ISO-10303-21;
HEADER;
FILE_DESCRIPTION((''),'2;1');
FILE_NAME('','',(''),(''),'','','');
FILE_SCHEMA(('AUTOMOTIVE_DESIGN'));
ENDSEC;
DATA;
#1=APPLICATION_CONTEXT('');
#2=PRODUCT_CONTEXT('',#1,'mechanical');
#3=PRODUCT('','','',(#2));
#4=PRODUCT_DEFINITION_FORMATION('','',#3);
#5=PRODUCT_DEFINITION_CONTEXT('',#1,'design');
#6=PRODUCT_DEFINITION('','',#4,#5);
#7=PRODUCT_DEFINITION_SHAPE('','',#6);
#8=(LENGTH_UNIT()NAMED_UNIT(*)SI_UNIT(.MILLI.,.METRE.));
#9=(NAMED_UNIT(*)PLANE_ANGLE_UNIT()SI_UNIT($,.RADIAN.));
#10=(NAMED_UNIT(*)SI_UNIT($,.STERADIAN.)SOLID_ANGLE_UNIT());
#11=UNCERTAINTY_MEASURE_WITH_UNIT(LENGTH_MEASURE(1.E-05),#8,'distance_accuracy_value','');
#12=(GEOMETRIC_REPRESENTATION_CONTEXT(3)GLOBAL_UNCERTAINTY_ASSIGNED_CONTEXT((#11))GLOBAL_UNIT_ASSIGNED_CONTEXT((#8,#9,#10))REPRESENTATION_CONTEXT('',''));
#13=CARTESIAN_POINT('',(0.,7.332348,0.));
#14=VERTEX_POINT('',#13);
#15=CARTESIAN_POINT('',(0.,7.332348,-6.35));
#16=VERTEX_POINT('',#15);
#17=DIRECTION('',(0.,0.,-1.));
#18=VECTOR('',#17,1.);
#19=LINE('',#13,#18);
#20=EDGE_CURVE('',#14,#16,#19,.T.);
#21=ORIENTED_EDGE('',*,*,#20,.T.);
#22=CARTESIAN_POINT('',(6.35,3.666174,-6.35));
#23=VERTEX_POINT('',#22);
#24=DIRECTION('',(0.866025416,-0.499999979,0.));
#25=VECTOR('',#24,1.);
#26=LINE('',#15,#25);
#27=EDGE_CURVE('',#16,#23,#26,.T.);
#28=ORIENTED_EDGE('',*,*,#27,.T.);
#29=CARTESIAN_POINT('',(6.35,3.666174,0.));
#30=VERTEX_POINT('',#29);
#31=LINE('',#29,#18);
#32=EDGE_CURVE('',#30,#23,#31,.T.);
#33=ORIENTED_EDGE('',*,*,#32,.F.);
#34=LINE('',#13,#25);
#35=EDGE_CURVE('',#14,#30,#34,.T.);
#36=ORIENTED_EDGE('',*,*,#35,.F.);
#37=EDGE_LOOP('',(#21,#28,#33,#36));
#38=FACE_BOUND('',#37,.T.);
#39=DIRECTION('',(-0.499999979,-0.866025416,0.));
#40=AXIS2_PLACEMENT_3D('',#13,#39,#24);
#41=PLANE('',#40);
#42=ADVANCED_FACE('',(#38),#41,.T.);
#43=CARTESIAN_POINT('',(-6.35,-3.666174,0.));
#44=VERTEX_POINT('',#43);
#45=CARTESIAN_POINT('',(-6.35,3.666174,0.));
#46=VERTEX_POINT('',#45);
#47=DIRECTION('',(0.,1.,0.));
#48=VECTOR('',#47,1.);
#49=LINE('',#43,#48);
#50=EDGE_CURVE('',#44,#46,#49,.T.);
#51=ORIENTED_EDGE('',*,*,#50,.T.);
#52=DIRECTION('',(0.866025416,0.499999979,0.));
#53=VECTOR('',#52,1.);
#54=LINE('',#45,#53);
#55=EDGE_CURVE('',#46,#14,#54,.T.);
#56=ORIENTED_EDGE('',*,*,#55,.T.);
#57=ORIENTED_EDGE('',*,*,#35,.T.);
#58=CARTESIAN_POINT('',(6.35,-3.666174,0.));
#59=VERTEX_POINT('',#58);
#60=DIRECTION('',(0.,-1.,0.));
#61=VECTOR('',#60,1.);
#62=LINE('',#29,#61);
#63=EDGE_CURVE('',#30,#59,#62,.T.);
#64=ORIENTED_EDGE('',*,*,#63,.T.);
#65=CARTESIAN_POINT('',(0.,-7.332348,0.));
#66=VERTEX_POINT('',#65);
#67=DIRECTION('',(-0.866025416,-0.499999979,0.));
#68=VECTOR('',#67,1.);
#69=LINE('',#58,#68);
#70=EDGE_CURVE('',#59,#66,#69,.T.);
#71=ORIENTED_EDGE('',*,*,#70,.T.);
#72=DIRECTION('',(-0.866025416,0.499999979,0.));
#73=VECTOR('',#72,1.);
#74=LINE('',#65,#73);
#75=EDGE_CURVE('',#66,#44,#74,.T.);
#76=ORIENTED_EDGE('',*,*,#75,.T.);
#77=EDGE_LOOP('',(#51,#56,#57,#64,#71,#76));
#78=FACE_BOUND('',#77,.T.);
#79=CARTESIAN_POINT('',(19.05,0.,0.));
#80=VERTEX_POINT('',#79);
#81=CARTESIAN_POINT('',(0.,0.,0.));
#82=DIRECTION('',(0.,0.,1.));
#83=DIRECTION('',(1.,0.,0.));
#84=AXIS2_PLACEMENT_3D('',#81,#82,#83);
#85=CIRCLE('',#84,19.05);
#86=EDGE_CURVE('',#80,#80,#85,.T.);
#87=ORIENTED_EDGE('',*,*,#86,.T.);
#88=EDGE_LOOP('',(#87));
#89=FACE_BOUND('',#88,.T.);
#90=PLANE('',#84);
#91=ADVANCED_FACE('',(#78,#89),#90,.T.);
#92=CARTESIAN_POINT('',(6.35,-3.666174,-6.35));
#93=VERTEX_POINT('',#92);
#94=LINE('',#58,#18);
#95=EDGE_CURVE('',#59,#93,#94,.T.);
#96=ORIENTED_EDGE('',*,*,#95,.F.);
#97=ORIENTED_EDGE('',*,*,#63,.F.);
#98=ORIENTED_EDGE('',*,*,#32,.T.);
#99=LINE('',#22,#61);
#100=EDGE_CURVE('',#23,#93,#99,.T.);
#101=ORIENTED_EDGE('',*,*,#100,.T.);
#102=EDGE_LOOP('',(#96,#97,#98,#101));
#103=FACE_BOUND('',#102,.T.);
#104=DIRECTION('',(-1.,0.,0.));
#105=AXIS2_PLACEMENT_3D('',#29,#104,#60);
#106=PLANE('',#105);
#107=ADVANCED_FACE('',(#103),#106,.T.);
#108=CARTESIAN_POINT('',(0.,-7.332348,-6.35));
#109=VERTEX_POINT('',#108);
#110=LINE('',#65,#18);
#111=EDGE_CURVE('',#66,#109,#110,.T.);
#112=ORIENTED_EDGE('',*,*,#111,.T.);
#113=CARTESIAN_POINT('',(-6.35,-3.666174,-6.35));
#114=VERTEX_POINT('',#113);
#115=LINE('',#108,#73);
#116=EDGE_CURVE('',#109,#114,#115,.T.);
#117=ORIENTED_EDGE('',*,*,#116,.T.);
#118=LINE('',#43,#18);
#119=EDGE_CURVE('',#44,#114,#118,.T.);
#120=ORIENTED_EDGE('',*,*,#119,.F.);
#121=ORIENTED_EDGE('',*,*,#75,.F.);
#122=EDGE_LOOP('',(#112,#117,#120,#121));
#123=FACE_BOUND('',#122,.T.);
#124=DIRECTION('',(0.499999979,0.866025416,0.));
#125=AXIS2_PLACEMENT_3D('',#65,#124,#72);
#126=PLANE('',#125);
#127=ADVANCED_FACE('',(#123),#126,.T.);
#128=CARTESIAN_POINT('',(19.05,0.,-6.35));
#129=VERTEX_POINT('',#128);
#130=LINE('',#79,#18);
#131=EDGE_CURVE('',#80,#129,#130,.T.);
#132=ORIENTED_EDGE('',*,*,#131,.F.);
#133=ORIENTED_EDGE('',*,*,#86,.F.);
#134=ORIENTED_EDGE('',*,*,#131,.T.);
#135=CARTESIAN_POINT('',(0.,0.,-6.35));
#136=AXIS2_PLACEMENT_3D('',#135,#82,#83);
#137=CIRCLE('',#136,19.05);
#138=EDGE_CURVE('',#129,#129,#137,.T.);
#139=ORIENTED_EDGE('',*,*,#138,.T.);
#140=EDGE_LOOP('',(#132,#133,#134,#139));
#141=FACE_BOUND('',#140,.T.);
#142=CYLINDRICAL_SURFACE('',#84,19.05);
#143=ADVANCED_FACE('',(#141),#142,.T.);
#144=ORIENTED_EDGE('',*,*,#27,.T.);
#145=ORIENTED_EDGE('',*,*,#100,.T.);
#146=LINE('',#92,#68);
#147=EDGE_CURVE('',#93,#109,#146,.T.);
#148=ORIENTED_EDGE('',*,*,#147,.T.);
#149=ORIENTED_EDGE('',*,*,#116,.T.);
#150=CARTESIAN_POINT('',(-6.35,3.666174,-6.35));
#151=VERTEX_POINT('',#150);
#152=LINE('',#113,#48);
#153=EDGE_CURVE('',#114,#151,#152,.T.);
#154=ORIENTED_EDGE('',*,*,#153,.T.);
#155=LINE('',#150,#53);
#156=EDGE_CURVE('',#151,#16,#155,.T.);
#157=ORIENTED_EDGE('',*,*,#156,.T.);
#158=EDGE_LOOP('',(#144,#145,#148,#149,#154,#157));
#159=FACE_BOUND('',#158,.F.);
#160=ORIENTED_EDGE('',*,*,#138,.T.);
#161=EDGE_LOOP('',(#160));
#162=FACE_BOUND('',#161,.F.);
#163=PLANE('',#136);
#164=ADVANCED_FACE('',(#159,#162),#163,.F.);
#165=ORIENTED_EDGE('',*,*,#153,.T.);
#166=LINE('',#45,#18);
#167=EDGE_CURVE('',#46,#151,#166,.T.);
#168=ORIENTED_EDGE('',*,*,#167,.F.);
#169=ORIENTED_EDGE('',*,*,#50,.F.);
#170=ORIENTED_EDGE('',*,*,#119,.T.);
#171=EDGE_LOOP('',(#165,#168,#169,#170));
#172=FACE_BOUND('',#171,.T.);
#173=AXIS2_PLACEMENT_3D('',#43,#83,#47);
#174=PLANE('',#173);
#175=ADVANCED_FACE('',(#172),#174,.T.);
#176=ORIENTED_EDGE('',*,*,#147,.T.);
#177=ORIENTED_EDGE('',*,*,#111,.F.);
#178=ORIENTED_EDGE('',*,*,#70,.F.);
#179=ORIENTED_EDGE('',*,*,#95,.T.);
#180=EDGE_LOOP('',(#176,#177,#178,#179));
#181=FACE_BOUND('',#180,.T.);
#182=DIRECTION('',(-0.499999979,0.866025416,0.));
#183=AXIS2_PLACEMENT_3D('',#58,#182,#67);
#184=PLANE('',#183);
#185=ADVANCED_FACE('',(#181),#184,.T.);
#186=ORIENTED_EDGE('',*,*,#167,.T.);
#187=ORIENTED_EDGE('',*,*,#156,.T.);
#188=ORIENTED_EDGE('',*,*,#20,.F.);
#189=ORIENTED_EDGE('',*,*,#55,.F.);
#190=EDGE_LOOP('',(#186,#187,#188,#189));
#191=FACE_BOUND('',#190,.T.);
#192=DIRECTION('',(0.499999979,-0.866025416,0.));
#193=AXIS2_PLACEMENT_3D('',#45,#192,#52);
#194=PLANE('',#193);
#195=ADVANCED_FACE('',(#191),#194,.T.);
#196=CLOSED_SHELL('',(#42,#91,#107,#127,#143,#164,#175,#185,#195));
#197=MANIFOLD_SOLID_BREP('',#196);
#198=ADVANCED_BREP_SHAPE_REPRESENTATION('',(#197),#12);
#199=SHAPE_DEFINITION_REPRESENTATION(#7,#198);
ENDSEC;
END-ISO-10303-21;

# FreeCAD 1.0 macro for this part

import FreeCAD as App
import Part
import Sketcher
from FreeCAD import Vector
Q = App.Units.Quantity


def add_polygon(sketch, points):
    """Adds a closed chain of lines whose ends are joined by coincident constraints."""
    first, n = sketch.GeometryCount, len(points)
    for a, b in zip(points, points[1:] + points[:1]):
        sketch.addGeometry(Part.LineSegment(App.Vector(*a, 0), App.Vector(*b, 0)), False)
    for i in range(n):
        sketch.addConstraint(Sketcher.Constraint("Coincident", first + i, 2, first + (i + 1) % n, 1))

doc = App.newDocument("Part")
body = doc.addObject("PartDesign::Body", "Body")

sketch1 = body.newObject("Sketcher::SketchObject", "Sketch")
sketch1.AttachmentSupport = (doc.getObject("XY_Plane"), [""])
sketch1.MapMode = "FlatFace"
sketch1.addGeometry(Part.Circle(Vector(0, 0, 0), Vector(0, 0, 1), 19), False)
add_polygon(sketch1, [(-6, 4), (0, 7), (6, 4), (6, -4), (0, -7), (-6, -4)])
sketch1.addConstraint(Sketcher.Constraint("Vertical", 3))
sketch1.addConstraint(Sketcher.Constraint("Vertical", 6))
sketch1.addConstraint(Sketcher.Constraint("Coincident", 0, 3, -1, 1))
sketch1.addConstraint(Sketcher.Constraint("Symmetric", 1, 2, 4, 2, -1, 1))
sketch1.addConstraint(Sketcher.Constraint("Symmetric", 2, 2, 5, 2, -1, 1))
sketch1.addConstraint(Sketcher.Constraint("PointOnObject", 1, 2, -2))
sketch1.addConstraint(Sketcher.Constraint("Parallel", 1, 4))
sketch1.addConstraint(Sketcher.Constraint("Horizontal", 3, 2, 5, 2))
sketch1.addConstraint(Sketcher.Constraint("Diameter", 0, Q("1.5 in")))
sketch1.addConstraint(Sketcher.Constraint("Angle", 1, Q("29.999999 deg")))
sketch1.addConstraint(Sketcher.Constraint("DistanceX", 5, 2, 3, 2, Q("0.5 in")))
sketch1.addConstraint(Sketcher.Constraint("DistanceY", 3, 2, 3, 1, Q("7.332348 mm")))
pad1 = body.newObject("PartDesign::Pad", "Pad")
pad1.Profile = sketch1
pad1.Length = Q("0.25 in")
pad1.Reversed = True

doc.recompute()
